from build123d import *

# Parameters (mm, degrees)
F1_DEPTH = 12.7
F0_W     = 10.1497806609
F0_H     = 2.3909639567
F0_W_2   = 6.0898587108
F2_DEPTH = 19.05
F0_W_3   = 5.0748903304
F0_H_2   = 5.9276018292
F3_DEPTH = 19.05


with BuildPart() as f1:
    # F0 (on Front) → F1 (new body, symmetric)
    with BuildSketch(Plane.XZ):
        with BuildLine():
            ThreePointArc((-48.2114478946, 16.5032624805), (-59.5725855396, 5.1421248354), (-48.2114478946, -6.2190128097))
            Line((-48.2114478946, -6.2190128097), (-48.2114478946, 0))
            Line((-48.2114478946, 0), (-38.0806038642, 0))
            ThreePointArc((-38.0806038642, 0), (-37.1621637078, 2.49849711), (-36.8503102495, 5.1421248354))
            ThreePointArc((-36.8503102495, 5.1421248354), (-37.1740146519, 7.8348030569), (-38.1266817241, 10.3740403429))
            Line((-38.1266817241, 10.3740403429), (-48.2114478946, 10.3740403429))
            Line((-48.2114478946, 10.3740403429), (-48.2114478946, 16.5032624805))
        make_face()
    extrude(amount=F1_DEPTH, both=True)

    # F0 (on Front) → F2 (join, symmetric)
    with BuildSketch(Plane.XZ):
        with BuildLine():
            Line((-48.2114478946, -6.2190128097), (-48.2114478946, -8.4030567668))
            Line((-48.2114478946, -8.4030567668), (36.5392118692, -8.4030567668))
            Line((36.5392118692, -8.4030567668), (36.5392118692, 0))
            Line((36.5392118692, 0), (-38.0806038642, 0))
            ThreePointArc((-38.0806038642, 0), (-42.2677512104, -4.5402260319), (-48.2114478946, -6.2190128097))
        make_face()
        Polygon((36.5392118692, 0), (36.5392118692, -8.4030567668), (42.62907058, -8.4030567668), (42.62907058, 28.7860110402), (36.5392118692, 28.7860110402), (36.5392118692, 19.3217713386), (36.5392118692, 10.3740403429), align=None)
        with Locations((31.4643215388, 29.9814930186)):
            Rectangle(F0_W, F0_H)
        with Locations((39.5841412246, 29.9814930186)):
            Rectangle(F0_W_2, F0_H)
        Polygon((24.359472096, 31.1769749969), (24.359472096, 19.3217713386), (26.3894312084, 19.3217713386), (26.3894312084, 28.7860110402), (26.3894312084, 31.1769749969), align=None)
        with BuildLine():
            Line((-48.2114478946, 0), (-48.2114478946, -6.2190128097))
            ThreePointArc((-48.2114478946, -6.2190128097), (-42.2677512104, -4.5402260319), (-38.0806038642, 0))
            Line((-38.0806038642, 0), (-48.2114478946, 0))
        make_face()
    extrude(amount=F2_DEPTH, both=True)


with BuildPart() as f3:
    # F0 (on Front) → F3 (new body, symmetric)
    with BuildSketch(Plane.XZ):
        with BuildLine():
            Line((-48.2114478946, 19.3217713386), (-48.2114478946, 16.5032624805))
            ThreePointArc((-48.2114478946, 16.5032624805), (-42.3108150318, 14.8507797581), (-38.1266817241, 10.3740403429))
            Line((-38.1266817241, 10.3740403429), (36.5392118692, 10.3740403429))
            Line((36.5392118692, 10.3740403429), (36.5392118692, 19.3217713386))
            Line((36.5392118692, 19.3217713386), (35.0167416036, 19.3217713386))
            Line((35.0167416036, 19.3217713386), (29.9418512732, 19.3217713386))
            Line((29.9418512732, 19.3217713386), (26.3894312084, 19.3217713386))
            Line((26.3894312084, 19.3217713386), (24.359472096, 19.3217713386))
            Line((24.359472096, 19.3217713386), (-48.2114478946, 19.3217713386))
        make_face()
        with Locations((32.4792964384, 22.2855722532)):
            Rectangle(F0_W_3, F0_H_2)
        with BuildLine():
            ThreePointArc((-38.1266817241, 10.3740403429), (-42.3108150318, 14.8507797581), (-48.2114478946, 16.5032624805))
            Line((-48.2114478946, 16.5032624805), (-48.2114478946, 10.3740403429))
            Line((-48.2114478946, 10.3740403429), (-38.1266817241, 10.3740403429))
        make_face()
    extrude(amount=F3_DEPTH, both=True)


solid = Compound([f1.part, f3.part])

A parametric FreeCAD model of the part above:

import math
import FreeCAD as App
import Part
import Sketcher
Q = App.Units.Quantity

doc = App.newDocument("Part")
body = doc.addObject("PartDesign::Body", "Body")

# Sketch on XZ plane
sketch1 = body.newObject("Sketcher::SketchObject", "Sketch")
sketch1.AttachmentSupport = (doc.getObject("XZ_Plane"), [""])
sketch1.MapMode = "FlatFace"
sketch1.addGeometry([
    Part.ArcOfCircle(Part.Circle(App.Vector(-48.211448, 5.142125, 0), App.Vector(0, 0, 1), 11.361138), math.radians(90), math.radians(270)),  # 0
    Part.LineSegment(App.Vector(-48.211448, -6.219013, 0), App.Vector(-48.211448, 0, 0)),  # 1
    Part.LineSegment(App.Vector(-48.211448, 0, 0), App.Vector(-38.080604, 0, 0)),  # 2
    Part.ArcOfCircle(Part.Circle(App.Vector(-48.211448, 5.142125, 0), App.Vector(0, 0, 1), 11.361138), math.radians(-26.911038), math.radians(0)),  # 3
    Part.ArcOfCircle(Part.Circle(App.Vector(-48.211448, 5.142125, 0), App.Vector(0, 0, 1), 11.361138), math.radians(0), math.radians(27.42001)),  # 4
    Part.LineSegment(App.Vector(-38.126682, 10.37404, 0), App.Vector(-48.211448, 10.37404, 0)),  # 5
    Part.LineSegment(App.Vector(-48.211448, 10.37404, 0), App.Vector(-48.211448, 16.503262, 0)),  # 6
], False)
sketch1.addConstraint([
    Sketcher.Constraint("Coincident", 0, 2, 1, 1),
    Sketcher.Constraint("Coincident", 1, 2, 2, 1),
    Sketcher.Constraint("Coincident", 2, 2, 3, 1),
    Sketcher.Constraint("Tangent", 3, 2, 4, 1),
    Sketcher.Constraint("Coincident", 4, 2, 5, 1),
    Sketcher.Constraint("Coincident", 5, 2, 6, 1),
    Sketcher.Constraint("Coincident", 6, 2, 0, 1),
    Sketcher.Constraint("Vertical", 1),
    Sketcher.Constraint("Horizontal", 2),
    Sketcher.Constraint("Horizontal", 5),
    Sketcher.Constraint("Vertical", 6),
    Sketcher.Constraint("Coincident", 3, 3, 0, 3),
    Sketcher.Constraint("Equal", 0, 3),
    Sketcher.Constraint("Equal", 3, 4),
    Sketcher.Constraint("PointOnObject", 1, 2, -1),
    Sketcher.Constraint("Horizontal", 4, 3, 3, 2),
    Sketcher.Constraint("Vertical", 4, 3, 0, 2),
    Sketcher.Constraint("Vertical", 1, 2, 5, 2),
    Sketcher.Constraint("Radius", 0, 11.361138),
    Sketcher.Constraint("DistanceX", 2, 1, 2, 2, 10.130844),
    Sketcher.Constraint("DistanceX", 5, 2, 5, 1, 10.084766),
    Sketcher.Constraint("DistanceX", 3, 2, -1, 1, 36.85031),
])
pad1 = body.newObject("PartDesign::Pad", "Pad")
pad1.Profile = sketch1
pad1.Length = Q("1 in")
pad1.Midplane = True

# Sketch on XZ plane
sketch2 = body.newObject("Sketcher::SketchObject", "Sketch001")
sketch2.AttachmentSupport = (doc.getObject("XZ_Plane"), [""])
sketch2.MapMode = "FlatFace"
sketch2.addGeometry([
    Part.LineSegment(App.Vector(-48.211448, -8.403057, 0), App.Vector(42.629071, -8.403057, 0)),  # 0
    Part.LineSegment(App.Vector(42.629071, -8.403057, 0), App.Vector(42.629071, 31.176975, 0)),  # 1
    Part.LineSegment(App.Vector(42.629071, 31.176975, 0), App.Vector(26.389431, 31.176975, 0)),  # 2
    Part.LineSegment(App.Vector(26.389431, 31.176975, 0), App.Vector(24.359472, 31.176975, 0)),  # 3
    Part.LineSegment(App.Vector(24.359472, 31.176975, 0), App.Vector(24.359472, 19.321771, 0)),  # 4
    Part.LineSegment(App.Vector(24.359472, 19.321771, 0), App.Vector(26.389431, 19.321771, 0)),  # 5
    Part.LineSegment(App.Vector(26.389431, 19.321771, 0), App.Vector(26.389431, 28.786011, 0)),  # 6
    Part.LineSegment(App.Vector(26.389431, 28.786011, 0), App.Vector(36.539212, 28.786011, 0)),  # 7
    Part.LineSegment(App.Vector(36.539212, 28.786011, 0), App.Vector(36.539212, 0, 0)),  # 8
    Part.LineSegment(App.Vector(36.539212, 0, 0), App.Vector(-48.211448, 0, 0)),  # 9
    Part.LineSegment(App.Vector(-48.211448, 0, 0), App.Vector(-48.211448, -8.403057, 0)),  # 10
], False)
sketch2.addConstraint([
    Sketcher.Constraint("Coincident", 0, 2, 1, 1),
    Sketcher.Constraint("Coincident", 1, 2, 2, 1),
    Sketcher.Constraint("Coincident", 2, 2, 3, 1),
    Sketcher.Constraint("Coincident", 3, 2, 4, 1),
    Sketcher.Constraint("Coincident", 4, 2, 5, 1),
    Sketcher.Constraint("Coincident", 5, 2, 6, 1),
    Sketcher.Constraint("Coincident", 6, 2, 7, 1),
    Sketcher.Constraint("Coincident", 7, 2, 8, 1),
    Sketcher.Constraint("Coincident", 8, 2, 9, 1),
    Sketcher.Constraint("Coincident", 9, 2, 10, 1),
    Sketcher.Constraint("Coincident", 10, 2, 0, 1),
    Sketcher.Constraint("Horizontal", 0),
    Sketcher.Constraint("Vertical", 1),
    Sketcher.Constraint("Horizontal", 2),
    Sketcher.Constraint("Horizontal", 3),
    Sketcher.Constraint("Vertical", 4),
    Sketcher.Constraint("Horizontal", 5),
    Sketcher.Constraint("Vertical", 6),
    Sketcher.Constraint("Horizontal", 7),
    Sketcher.Constraint("Vertical", 8),
    Sketcher.Constraint("Horizontal", 9),
    Sketcher.Constraint("Vertical", 10),
    Sketcher.Constraint("PointOnObject", 8, 2, -1),
    Sketcher.Constraint("Vertical", 2, 2, 5, 2),
    Sketcher.Constraint("DistanceX", 0, 1, 0, 2, 90.840518),
    Sketcher.Constraint("DistanceX", 2, 2, 2, 1, 16.239639),
    Sketcher.Constraint("DistanceX", 3, 2, 3, 1, 2.029959),
    Sketcher.Constraint("DistanceX", 7, 1, 7, 2, 10.149781),
    Sketcher.Constraint("DistanceY", 1, 1, 1, 2, 39.580032),
    Sketcher.Constraint("DistanceY", 6, 1, 6, 2, 9.46424),
    Sketcher.Constraint("DistanceY", 8, 2, 8, 1, 28.786011),
    Sketcher.Constraint("DistanceY", 4, 2, 4, 1, 11.855204),
    Sketcher.Constraint("DistanceX", -1, 1, 0, 2, 42.629071),
])
pad2 = body.newObject("PartDesign::Pad", "Pad001")
pad2.Profile = sketch2
pad2.Length = Q("1.5 in")
pad2.Midplane = True
body2 = doc.addObject("PartDesign::Body", "Body001")

# Sketch on XZ plane
sketch3 = body2.newObject("Sketcher::SketchObject", "Sketch002")
sketch3.AttachmentSupport = (doc.getObject("XZ_Plane001"), [""])
sketch3.MapMode = "FlatFace"
sketch3.addGeometry([
    Part.LineSegment(App.Vector(-48.211448, 19.321771, 0), App.Vector(-48.211448, 10.37404, 0)),  # 0
    Part.LineSegment(App.Vector(-48.211448, 10.37404, 0), App.Vector(36.539212, 10.37404, 0)),  # 1
    Part.LineSegment(App.Vector(36.539212, 10.37404, 0), App.Vector(36.539212, 19.321771, 0)),  # 2
    Part.LineSegment(App.Vector(36.539212, 19.321771, 0), App.Vector(35.016742, 19.321771, 0)),  # 3
    Part.LineSegment(App.Vector(35.016742, 19.321771, 0), App.Vector(35.016742, 25.249373, 0)),  # 4
    Part.LineSegment(App.Vector(35.016742, 25.249373, 0), App.Vector(29.941851, 25.249373, 0)),  # 5
    Part.LineSegment(App.Vector(29.941851, 25.249373, 0), App.Vector(29.941851, 19.321771, 0)),  # 6
    Part.LineSegment(App.Vector(29.941851, 19.321771, 0), App.Vector(-48.211448, 19.321771, 0)),  # 7
], False)
sketch3.addConstraint([
    Sketcher.Constraint("Coincident", 0, 2, 1, 1),
    Sketcher.Constraint("Coincident", 1, 2, 2, 1),
    Sketcher.Constraint("Coincident", 2, 2, 3, 1),
    Sketcher.Constraint("Coincident", 3, 2, 4, 1),
    Sketcher.Constraint("Coincident", 4, 2, 5, 1),
    Sketcher.Constraint("Coincident", 5, 2, 6, 1),
    Sketcher.Constraint("Coincident", 6, 2, 7, 1),
    Sketcher.Constraint("Coincident", 7, 2, 0, 1),
    Sketcher.Constraint("Vertical", 0),
    Sketcher.Constraint("Horizontal", 1),
    Sketcher.Constraint("Vertical", 2),
    Sketcher.Constraint("Horizontal", 3),
    Sketcher.Constraint("Vertical", 4),
    Sketcher.Constraint("Horizontal", 5),
    Sketcher.Constraint("Vertical", 6),
    Sketcher.Constraint("Horizontal", 7),
    Sketcher.Constraint("Horizontal", 3, 2, 6, 2),
    Sketcher.Constraint("DistanceX", 7, 2, 7, 1, 78.153299),
    Sketcher.Constraint("DistanceY", 4, 1, 4, 2, 5.927602),
    Sketcher.Constraint("DistanceX", 1, 1, 1, 2, 84.75066),
    Sketcher.Constraint("DistanceX", 3, 2, 3, 1, 1.52247),
    Sketcher.Constraint("DistanceY", 0, 2, 0, 1, 8.947731),
    Sketcher.Constraint("DistanceY", -1, 1, 0, 2, 10.37404),
    Sketcher.Constraint("DistanceX", -1, 1, 1, 2, 36.539212),
])
pad3 = body2.newObject("PartDesign::Pad", "Pad002")
pad3.Profile = sketch3
pad3.Length = Q("1.5 in")
pad3.Midplane = True

doc.recompute()
